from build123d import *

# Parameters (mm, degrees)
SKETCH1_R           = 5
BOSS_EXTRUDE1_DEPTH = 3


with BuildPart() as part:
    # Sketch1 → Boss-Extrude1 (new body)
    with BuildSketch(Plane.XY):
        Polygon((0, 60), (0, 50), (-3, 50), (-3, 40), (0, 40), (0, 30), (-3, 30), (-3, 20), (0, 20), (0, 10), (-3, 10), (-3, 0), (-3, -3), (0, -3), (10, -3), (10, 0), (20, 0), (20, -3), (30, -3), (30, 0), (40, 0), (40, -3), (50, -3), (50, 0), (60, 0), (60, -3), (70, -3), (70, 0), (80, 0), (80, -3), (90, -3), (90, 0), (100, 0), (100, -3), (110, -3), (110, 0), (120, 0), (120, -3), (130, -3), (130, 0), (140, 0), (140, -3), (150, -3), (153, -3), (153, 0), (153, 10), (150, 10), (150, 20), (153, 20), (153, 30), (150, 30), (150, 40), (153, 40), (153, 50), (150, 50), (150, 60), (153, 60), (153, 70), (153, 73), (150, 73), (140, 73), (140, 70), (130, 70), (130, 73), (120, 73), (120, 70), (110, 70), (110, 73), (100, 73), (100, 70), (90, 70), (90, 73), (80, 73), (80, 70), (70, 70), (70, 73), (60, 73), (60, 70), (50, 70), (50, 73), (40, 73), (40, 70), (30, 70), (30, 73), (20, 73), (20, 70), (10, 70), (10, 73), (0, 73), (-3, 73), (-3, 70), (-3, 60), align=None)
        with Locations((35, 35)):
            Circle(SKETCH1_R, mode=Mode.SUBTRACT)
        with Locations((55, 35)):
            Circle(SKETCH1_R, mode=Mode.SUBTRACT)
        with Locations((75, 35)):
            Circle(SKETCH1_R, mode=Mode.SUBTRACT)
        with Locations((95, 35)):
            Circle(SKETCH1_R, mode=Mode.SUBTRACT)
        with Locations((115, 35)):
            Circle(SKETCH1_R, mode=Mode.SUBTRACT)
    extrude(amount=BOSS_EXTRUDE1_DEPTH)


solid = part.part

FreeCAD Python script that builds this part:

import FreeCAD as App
import Part
import Sketcher
Q = App.Units.Quantity


def add_polygon(sketch, points):
    """Adds a closed chain of lines whose ends are joined by coincident constraints."""
    first, n = sketch.GeometryCount, len(points)
    for a, b in zip(points, points[1:] + points[:1]):
        sketch.addGeometry(Part.LineSegment(App.Vector(*a, 0), App.Vector(*b, 0)), False)
    for i in range(n):
        sketch.addConstraint(Sketcher.Constraint("Coincident", first + i, 2, first + (i + 1) % n, 1))

doc = App.newDocument("Part")
body = doc.addObject("PartDesign::Body", "Body")

# Sketch on XY plane
sketch1 = doc.addObject("Sketcher::SketchObject", "Sketch")
body.addObject(sketch1)
sketch1.AttachmentSupport = (doc.XY_Plane, [""])
sketch1.MapMode = "FlatFace"
add_polygon(sketch1, [(0, 60), (0, 50), (-3, 50), (-3, 40), (0, 40), (0, 30), (-3, 30), (-3, 20), (0, 20), (0, 10), (-3, 10), (-3, -3), (10, -3), (10, 0), (20, 0), (20, -3), (30, -3), (30, 0), (40, 0), (40, -3), (50, -3), (50, 0), (60, 0), (60, -3), (70, -3), (70, 0), (80, 0), (80, -3), (90, -3), (90, 0), (100, 0), (100, -3), (110, -3), (110, 0), (120, 0), (120, -3), (130, -3), (130, 0), (140, 0), (140, -3), (153, -3), (153, 10), (150, 10), (150, 20), (153, 20), (153, 30), (150, 30), (150, 40), (153, 40), (153, 50), (150, 50), (150, 60), (153, 60), (153, 73), (140, 73), (140, 70), (130, 70), (130, 73), (120, 73), (120, 70), (110, 70), (110, 73), (100, 73), (100, 70), (90, 70), (90, 73), (80, 73), (80, 70), (70, 70), (70, 73), (60, 73), (60, 70), (50, 70), (50, 73), (40, 73), (40, 70), (30, 70), (30, 73), (20, 73), (20, 70), (10, 70), (10, 73), (-3, 73), (-3, 60)])  # lines 0-83
sketch1.addGeometry(Part.Circle(App.Vector(35, 35, 0), App.Vector(0, 0, 1), 5), False)  # 84
sketch1.addGeometry(Part.Circle(App.Vector(55, 35, 0), App.Vector(0, 0, 1), 5), False)  # 85
sketch1.addGeometry(Part.Circle(App.Vector(75, 35, 0), App.Vector(0, 0, 1), 5), False)  # 86
sketch1.addGeometry(Part.Circle(App.Vector(95, 35, 0), App.Vector(0, 0, 1), 5), False)  # 87
sketch1.addGeometry(Part.Circle(App.Vector(115, 35, 0), App.Vector(0, 0, 1), 5), False)  # 88
sketch1.addConstraint([
    Sketcher.Constraint("Vertical", 0),
    Sketcher.Constraint("Horizontal", 1),
    Sketcher.Constraint("Vertical", 2),
    Sketcher.Constraint("Horizontal", 3),
    Sketcher.Constraint("Vertical", 4),
    Sketcher.Constraint("Horizontal", 5),
    Sketcher.Constraint("Vertical", 6),
    Sketcher.Constraint("Horizontal", 7),
    Sketcher.Constraint("Vertical", 8),
    Sketcher.Constraint("Horizontal", 9),
    Sketcher.Constraint("Vertical", 10),
    Sketcher.Constraint("Horizontal", 11),
    Sketcher.Constraint("Vertical", 12),
    Sketcher.Constraint("Horizontal", 13),
    Sketcher.Constraint("Vertical", 14),
    Sketcher.Constraint("Horizontal", 15),
    Sketcher.Constraint("Vertical", 16),
    Sketcher.Constraint("Horizontal", 17),
    Sketcher.Constraint("Vertical", 18),
    Sketcher.Constraint("Horizontal", 19),
    Sketcher.Constraint("Vertical", 20),
    Sketcher.Constraint("Horizontal", 21),
    Sketcher.Constraint("Vertical", 22),
    Sketcher.Constraint("Horizontal", 23),
    Sketcher.Constraint("Vertical", 24),
    Sketcher.Constraint("Horizontal", 25),
    Sketcher.Constraint("Vertical", 26),
    Sketcher.Constraint("Horizontal", 27),
    Sketcher.Constraint("Vertical", 28),
    Sketcher.Constraint("Horizontal", 29),
    Sketcher.Constraint("Vertical", 30),
    Sketcher.Constraint("Horizontal", 31),
    Sketcher.Constraint("Vertical", 32),
    Sketcher.Constraint("Horizontal", 33),
    Sketcher.Constraint("Vertical", 34),
    Sketcher.Constraint("Horizontal", 35),
    Sketcher.Constraint("Vertical", 36),
    Sketcher.Constraint("Horizontal", 37),
    Sketcher.Constraint("Vertical", 38),
    Sketcher.Constraint("Horizontal", 39),
    Sketcher.Constraint("Vertical", 40),
    Sketcher.Constraint("Horizontal", 41),
    Sketcher.Constraint("Vertical", 42),
    Sketcher.Constraint("Horizontal", 43),
    Sketcher.Constraint("Vertical", 44),
    Sketcher.Constraint("Horizontal", 45),
    Sketcher.Constraint("Vertical", 46),
    Sketcher.Constraint("Horizontal", 47),
    Sketcher.Constraint("Vertical", 48),
    Sketcher.Constraint("Horizontal", 49),
    Sketcher.Constraint("Vertical", 50),
    Sketcher.Constraint("Horizontal", 51),
    Sketcher.Constraint("Vertical", 52),
    Sketcher.Constraint("Horizontal", 53),
    Sketcher.Constraint("Vertical", 54),
    Sketcher.Constraint("Horizontal", 55),
    Sketcher.Constraint("Vertical", 56),
    Sketcher.Constraint("Horizontal", 57),
    Sketcher.Constraint("Vertical", 58),
    Sketcher.Constraint("Horizontal", 59),
    Sketcher.Constraint("Vertical", 60),
    Sketcher.Constraint("Horizontal", 61),
    Sketcher.Constraint("Vertical", 62),
    Sketcher.Constraint("Horizontal", 63),
    Sketcher.Constraint("Vertical", 64),
    Sketcher.Constraint("Horizontal", 65),
    Sketcher.Constraint("Vertical", 66),
    Sketcher.Constraint("Horizontal", 67),
    Sketcher.Constraint("Vertical", 68),
    Sketcher.Constraint("Horizontal", 69),
    Sketcher.Constraint("Vertical", 70),
    Sketcher.Constraint("Horizontal", 71),
    Sketcher.Constraint("Vertical", 72),
    Sketcher.Constraint("Horizontal", 73),
    Sketcher.Constraint("Vertical", 74),
    Sketcher.Constraint("Horizontal", 75),
    Sketcher.Constraint("Vertical", 76),
    Sketcher.Constraint("Horizontal", 77),
    Sketcher.Constraint("Vertical", 78),
    Sketcher.Constraint("Horizontal", 79),
    Sketcher.Constraint("Vertical", 80),
    Sketcher.Constraint("Horizontal", 81),
    Sketcher.Constraint("Vertical", 82),
    Sketcher.Constraint("Horizontal", 83),
    Sketcher.Constraint("Equal", 84, 85),
    Sketcher.Constraint("Equal", 85, 86),
    Sketcher.Constraint("Equal", 86, 87),
    Sketcher.Constraint("Equal", 87, 88),
    Sketcher.Constraint("PointOnObject", 0, 2, -2),
    Sketcher.Constraint("PointOnObject", 3, 2, -2),
    Sketcher.Constraint("PointOnObject", 7, 2, -2),
    Sketcher.Constraint("PointOnObject", 12, 2, -1),
    Sketcher.Constraint("PointOnObject", 16, 2, -1),
    Sketcher.Constraint("PointOnObject", 20, 2, -1),
    Sketcher.Constraint("PointOnObject", 24, 2, -1),
    Sketcher.Constraint("PointOnObject", 28, 2, -1),
    Sketcher.Constraint("PointOnObject", 32, 2, -1),
    Sketcher.Constraint("PointOnObject", 36, 2, -1),
    Sketcher.Constraint("Horizontal", 84, 3, 85, 3),
    Sketcher.Constraint("Horizontal", 85, 3, 86, 3),
    Sketcher.Constraint("Horizontal", 86, 3, 87, 3),
    Sketcher.Constraint("Horizontal", 87, 3, 88, 3),
    Sketcher.Constraint("Horizontal", 11, 2, 14, 2),
    Sketcher.Constraint("Horizontal", 15, 2, 18, 2),
    Sketcher.Constraint("Horizontal", 19, 2, 22, 2),
    Sketcher.Constraint("Horizontal", 23, 2, 26, 2),
    Sketcher.Constraint("Horizontal", 27, 2, 30, 2),
    Sketcher.Constraint("Horizontal", 31, 2, 34, 2),
    Sketcher.Constraint("Horizontal", 35, 2, 38, 2),
    Sketcher.Constraint("Horizontal", 9, 2, 40, 2),
    Sketcher.Constraint("Horizontal", 7, 2, 42, 2),
    Sketcher.Constraint("Horizontal", 5, 2, 44, 2),
    Sketcher.Constraint("Horizontal", 3, 2, 46, 2),
    Sketcher.Constraint("Horizontal", 1, 2, 48, 2),
    Sketcher.Constraint("Horizontal", 53, 2, 56, 2),
    Sketcher.Constraint("Horizontal", 55, 2, 58, 2),
    Sketcher.Constraint("Horizontal", 57, 2, 60, 2),
    Sketcher.Constraint("Horizontal", 59, 2, 62, 2),
    Sketcher.Constraint("Horizontal", 61, 2, 64, 2),
    Sketcher.Constraint("Horizontal", 63, 2, 66, 2),
    Sketcher.Constraint("Horizontal", 65, 2, 68, 2),
    Sketcher.Constraint("Horizontal", 67, 2, 70, 2),
    Sketcher.Constraint("Horizontal", 69, 2, 72, 2),
    Sketcher.Constraint("Horizontal", 71, 2, 74, 2),
    Sketcher.Constraint("Horizontal", 73, 2, 76, 2),
    Sketcher.Constraint("Horizontal", 75, 2, 78, 2),
    Sketcher.Constraint("Horizontal", 77, 2, 80, 2),
    Sketcher.Constraint("Horizontal", 51, 2, 82, 2),
    Sketcher.Constraint("Vertical", 2, 2, 5, 2),
    Sketcher.Constraint("Vertical", 6, 2, 9, 2),
    Sketcher.Constraint("Vertical", 40, 2, 43, 2),
    Sketcher.Constraint("Vertical", 42, 2, 45, 2),
    Sketcher.Constraint("Vertical", 44, 2, 47, 2),
    Sketcher.Constraint("Vertical", 46, 2, 49, 2),
    Sketcher.Constraint("Vertical", 48, 2, 51, 2),
    Sketcher.Constraint("Vertical", 38, 2, 53, 2),
    Sketcher.Constraint("Vertical", 36, 2, 55, 2),
    Sketcher.Constraint("Vertical", 34, 2, 57, 2),
    Sketcher.Constraint("Vertical", 32, 2, 59, 2),
    Sketcher.Constraint("Vertical", 30, 2, 61, 2),
    Sketcher.Constraint("Vertical", 28, 2, 63, 2),
    Sketcher.Constraint("Vertical", 26, 2, 65, 2),
    Sketcher.Constraint("Vertical", 24, 2, 67, 2),
    Sketcher.Constraint("Vertical", 22, 2, 69, 2),
    Sketcher.Constraint("Vertical", 20, 2, 71, 2),
    Sketcher.Constraint("Vertical", 18, 2, 73, 2),
    Sketcher.Constraint("Vertical", 16, 2, 75, 2),
    Sketcher.Constraint("Vertical", 14, 2, 77, 2),
    Sketcher.Constraint("Vertical", 12, 2, 79, 2),
    Sketcher.Constraint("Vertical", 10, 2, 81, 2),
    Sketcher.Constraint("Equal", 13, 15),
    Sketcher.Constraint("Equal", 15, 17),
    Sketcher.Constraint("Equal", 17, 19),
    Sketcher.Constraint("Equal", 19, 21),
    Sketcher.Constraint("Equal", 21, 23),
    Sketcher.Constraint("Equal", 23, 25),
    Sketcher.Constraint("Equal", 25, 27),
    Sketcher.Constraint("Equal", 27, 29),
    Sketcher.Constraint("Equal", 29, 31),
    Sketcher.Constraint("Equal", 31, 33),
    Sketcher.Constraint("Equal", 33, 35),
    Sketcher.Constraint("Equal", 35, 37),
    Sketcher.Constraint("Equal", 11, 39),
    Sketcher.Constraint("Equal", 9, 41),
    Sketcher.Constraint("Equal", 79, 0),
    Sketcher.Constraint("Equal", 0, 2),
    Sketcher.Constraint("Equal", 2, 4),
    Sketcher.Constraint("Equal", 4, 6),
    Sketcher.Constraint("Equal", 6, 8),
    Sketcher.Constraint("Equal", 81, 10),
    Sketcher.Constraint("Equal", 83, 12),
    Sketcher.Constraint("Equal", 40, 52),
    Sketcher.Constraint("Equal", 38, 54),
    Sketcher.Constraint("Diameter", 84, Q("10 mm")),
    Sketcher.Constraint("DistanceX", 1, 2, 1, 1, Q("3 mm")),
    Sketcher.Constraint("DistanceX", 11, 1, 11, 2, Q("13 mm")),
    Sketcher.Constraint("DistanceX", 13, 1, 13, 2, Q("10 mm")),
    Sketcher.Constraint("DistanceX", -1, 1, 84, 3, Q("35 mm")),
    Sketcher.Constraint("DistanceY", -1, 1, 84, 3, Q("35 mm")),
    Sketcher.Constraint("DistanceX", -1, 1, 85, 3, Q("55 mm")),
    Sketcher.Constraint("DistanceX", -1, 1, 86, 3, Q("75 mm")),
    Sketcher.Constraint("DistanceX", -1, 1, 87, 3, Q("95 mm")),
    Sketcher.Constraint("DistanceX", -1, 1, 88, 3, Q("115 mm")),
])
pad1 = doc.addObject("PartDesign::Pad", "Pad")
body.addObject(pad1)
pad1.Profile = sketch1
pad1.Length = 3

doc.recompute()
